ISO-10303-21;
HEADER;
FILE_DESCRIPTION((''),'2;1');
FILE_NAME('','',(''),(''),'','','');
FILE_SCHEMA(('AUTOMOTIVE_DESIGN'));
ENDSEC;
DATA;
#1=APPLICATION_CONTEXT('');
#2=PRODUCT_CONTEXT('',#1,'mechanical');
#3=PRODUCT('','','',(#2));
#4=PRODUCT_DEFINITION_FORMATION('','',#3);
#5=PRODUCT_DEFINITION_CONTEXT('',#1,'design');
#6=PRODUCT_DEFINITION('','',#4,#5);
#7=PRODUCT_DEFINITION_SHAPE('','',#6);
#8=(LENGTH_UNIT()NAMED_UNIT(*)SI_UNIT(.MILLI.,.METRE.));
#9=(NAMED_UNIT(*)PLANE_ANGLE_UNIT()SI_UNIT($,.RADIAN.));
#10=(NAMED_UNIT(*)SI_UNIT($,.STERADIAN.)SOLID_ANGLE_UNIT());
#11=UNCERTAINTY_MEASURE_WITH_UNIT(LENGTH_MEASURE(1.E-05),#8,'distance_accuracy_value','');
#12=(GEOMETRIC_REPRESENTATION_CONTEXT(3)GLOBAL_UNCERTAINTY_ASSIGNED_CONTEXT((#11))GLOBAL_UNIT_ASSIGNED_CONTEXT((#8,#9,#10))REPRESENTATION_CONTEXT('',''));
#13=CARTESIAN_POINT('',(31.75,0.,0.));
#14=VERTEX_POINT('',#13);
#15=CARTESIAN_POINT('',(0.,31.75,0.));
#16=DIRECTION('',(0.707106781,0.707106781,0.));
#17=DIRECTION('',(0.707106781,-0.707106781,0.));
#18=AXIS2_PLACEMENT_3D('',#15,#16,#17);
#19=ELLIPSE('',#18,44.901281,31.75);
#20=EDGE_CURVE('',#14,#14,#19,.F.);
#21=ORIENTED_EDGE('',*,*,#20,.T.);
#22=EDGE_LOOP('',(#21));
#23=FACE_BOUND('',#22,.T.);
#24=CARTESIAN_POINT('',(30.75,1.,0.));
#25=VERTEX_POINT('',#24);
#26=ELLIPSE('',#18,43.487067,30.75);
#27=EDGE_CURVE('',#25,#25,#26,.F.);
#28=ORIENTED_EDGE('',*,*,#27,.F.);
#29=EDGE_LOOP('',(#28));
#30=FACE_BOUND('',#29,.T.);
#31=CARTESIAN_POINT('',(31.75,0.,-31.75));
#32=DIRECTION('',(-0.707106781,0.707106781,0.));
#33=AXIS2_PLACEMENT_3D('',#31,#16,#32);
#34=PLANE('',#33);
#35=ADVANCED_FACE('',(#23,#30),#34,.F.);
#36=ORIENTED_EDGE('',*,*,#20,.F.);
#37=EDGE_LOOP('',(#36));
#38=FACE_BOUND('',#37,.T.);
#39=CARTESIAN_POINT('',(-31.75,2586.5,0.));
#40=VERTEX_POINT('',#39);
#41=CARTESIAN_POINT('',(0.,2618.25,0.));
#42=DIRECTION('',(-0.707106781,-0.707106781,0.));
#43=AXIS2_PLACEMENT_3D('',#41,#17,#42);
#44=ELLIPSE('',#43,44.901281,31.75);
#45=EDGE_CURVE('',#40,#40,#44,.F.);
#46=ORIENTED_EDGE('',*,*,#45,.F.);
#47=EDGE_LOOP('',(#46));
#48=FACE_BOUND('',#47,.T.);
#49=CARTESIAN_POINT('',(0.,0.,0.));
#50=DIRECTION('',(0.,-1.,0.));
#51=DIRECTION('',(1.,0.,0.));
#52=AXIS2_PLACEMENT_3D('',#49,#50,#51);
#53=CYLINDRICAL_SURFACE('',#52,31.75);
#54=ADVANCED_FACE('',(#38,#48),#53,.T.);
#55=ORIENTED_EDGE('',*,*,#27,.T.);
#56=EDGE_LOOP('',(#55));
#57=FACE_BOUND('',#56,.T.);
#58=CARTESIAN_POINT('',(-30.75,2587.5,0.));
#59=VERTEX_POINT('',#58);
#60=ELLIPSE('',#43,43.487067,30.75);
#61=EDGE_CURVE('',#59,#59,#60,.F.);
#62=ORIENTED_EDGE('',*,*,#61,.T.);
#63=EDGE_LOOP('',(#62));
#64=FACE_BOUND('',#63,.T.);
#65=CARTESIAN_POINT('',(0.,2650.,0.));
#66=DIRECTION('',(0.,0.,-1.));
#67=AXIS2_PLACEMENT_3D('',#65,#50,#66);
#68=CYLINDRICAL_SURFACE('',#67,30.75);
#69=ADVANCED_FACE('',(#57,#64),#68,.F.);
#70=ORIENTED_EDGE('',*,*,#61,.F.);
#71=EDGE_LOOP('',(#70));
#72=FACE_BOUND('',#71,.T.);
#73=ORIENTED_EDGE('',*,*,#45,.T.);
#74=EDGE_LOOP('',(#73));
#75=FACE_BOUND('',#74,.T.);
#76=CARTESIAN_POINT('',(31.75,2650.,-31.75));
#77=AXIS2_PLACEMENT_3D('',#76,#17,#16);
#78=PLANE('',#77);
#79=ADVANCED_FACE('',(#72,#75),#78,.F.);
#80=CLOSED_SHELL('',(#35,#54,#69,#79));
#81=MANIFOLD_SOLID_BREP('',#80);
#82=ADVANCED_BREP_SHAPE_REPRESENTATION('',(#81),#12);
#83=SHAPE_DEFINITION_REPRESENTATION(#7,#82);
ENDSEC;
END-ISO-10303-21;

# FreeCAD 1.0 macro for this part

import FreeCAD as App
import Part
import Sketcher

V = App.Vector

doc = App.newDocument("Part")
body = doc.addObject("PartDesign::Body", "Body")

# Sketch on XY plane
sketch1 = doc.addObject("Sketcher::SketchObject", "Sketch")
body.addObject(sketch1)
sketch1.AttachmentSupport = (doc.XY_Plane, [""])
sketch1.MapMode = "FlatFace"
sketch1.addGeometry([
    Part.LineSegment(V(0, 2650, 0), V(0, 0, 0)),
    Part.LineSegment(V(0, 0, 0), V(32, 0, 0)),
    Part.LineSegment(V(32, 0, 0), V(32, 2650, 0)),
    Part.LineSegment(V(32, 2650, 0), V(0, 2650, 0)),
], False)
sketch1.addConstraint([
    Sketcher.Constraint("Coincident", 0, 2, 1, 1),
    Sketcher.Constraint("Coincident", 1, 2, 2, 1),
    Sketcher.Constraint("Coincident", 2, 2, 3, 1),
    Sketcher.Constraint("Coincident", 3, 2, 0, 1),
    Sketcher.Constraint("Vertical", 0),
    Sketcher.Constraint("Horizontal", 1),
    Sketcher.Constraint("Vertical", 2),
    Sketcher.Constraint("Horizontal", 3),
    Sketcher.Constraint("Coincident", 0, 2, -1, 1),
    Sketcher.Constraint("DistanceY", 0, 2, 0, 1, 2650.0),
    Sketcher.Constraint("DistanceX", 1, 1, 1, 2, 31.75),
])
revolution = doc.addObject("PartDesign::Revolution", "Revolution")
body.addObject(revolution)
revolution.Profile = sketch1
revolution.ReferenceAxis = (sketch1, ["V_Axis"])
revolution.Angle = 360

# Sketch on XY plane
sketch2 = doc.addObject("Sketcher::SketchObject", "Sketch001")
body.addObject(sketch2)
sketch2.AttachmentSupport = (doc.XY_Plane, [""])
sketch2.MapMode = "FlatFace"
sketch2.addGeometry([
    Part.LineSegment(V(32, 2650, 0), V(-32, 2650, 0)),  # 0
    Part.LineSegment(V(-32, 2650, 0), V(-32, 2586, 0)),  # 1
    Part.LineSegment(V(-32, 2586, 0), V(32, 2650, 0)),  # 2
    Part.LineSegment(V(32, 0, 0), V(-32, 64, 0)),  # 3
    Part.LineSegment(V(-32, 64, 0), V(-32, 0, 0)),  # 4
    Part.LineSegment(V(-32, 0, 0), V(32, 0, 0)),  # 5
], False)
sketch2.addConstraint([
    Sketcher.Constraint("Coincident", 0, 2, 1, 1),
    Sketcher.Constraint("Coincident", 1, 2, 2, 1),
    Sketcher.Constraint("Coincident", 2, 2, 0, 1),
    Sketcher.Constraint("Coincident", 3, 2, 4, 1),
    Sketcher.Constraint("Coincident", 4, 2, 5, 1),
    Sketcher.Constraint("Coincident", 5, 2, 3, 1),
    Sketcher.Constraint("Horizontal", 0),
    Sketcher.Constraint("Vertical", 1),
    Sketcher.Constraint("Vertical", 4),
    Sketcher.Constraint("Horizontal", 5),
    Sketcher.Constraint("Symmetric", 4, 2, 5, 2, -1, 1),
    Sketcher.Constraint("Perpendicular", 2, 3),
    Sketcher.Constraint("Vertical", 1, 2, 3, 2),
    Sketcher.Constraint("Vertical", 2, 2, 5, 2),
    Sketcher.Constraint("Equal", 5, 1),
    Sketcher.Constraint("DistanceX", 0, 2, 0, 1, 63.5),
    Sketcher.Constraint("DistanceY", -1, 1, 0, 2, 2650.0),
])
pocket1 = doc.addObject("PartDesign::Pocket", "Pocket")
body.addObject(pocket1)
pocket1.Profile = sketch2
pocket1.Type = "ThroughAll"
pocket1.Midplane = True

# Sketch on XZ plane
sketch3 = doc.addObject("Sketcher::SketchObject", "Sketch002")
body.addObject(sketch3)
sketch3.AttachmentSupport = (doc.XZ_Plane, [""])
sketch3.MapMode = "FlatFace"
sketch3.addGeometry(Part.Circle(V(0, 0, 0), V(0, 0, 1), 31), False)
sketch3.addConstraint([
    Sketcher.Constraint("Coincident", 0, 3, -1, 1),
    Sketcher.Constraint("Diameter", 0, 61.5),
])
pocket2 = doc.addObject("PartDesign::Pocket", "Pocket001")
body.addObject(pocket2)
pocket2.Profile = sketch3
pocket2.Type = "ThroughAll"

doc.recompute()
